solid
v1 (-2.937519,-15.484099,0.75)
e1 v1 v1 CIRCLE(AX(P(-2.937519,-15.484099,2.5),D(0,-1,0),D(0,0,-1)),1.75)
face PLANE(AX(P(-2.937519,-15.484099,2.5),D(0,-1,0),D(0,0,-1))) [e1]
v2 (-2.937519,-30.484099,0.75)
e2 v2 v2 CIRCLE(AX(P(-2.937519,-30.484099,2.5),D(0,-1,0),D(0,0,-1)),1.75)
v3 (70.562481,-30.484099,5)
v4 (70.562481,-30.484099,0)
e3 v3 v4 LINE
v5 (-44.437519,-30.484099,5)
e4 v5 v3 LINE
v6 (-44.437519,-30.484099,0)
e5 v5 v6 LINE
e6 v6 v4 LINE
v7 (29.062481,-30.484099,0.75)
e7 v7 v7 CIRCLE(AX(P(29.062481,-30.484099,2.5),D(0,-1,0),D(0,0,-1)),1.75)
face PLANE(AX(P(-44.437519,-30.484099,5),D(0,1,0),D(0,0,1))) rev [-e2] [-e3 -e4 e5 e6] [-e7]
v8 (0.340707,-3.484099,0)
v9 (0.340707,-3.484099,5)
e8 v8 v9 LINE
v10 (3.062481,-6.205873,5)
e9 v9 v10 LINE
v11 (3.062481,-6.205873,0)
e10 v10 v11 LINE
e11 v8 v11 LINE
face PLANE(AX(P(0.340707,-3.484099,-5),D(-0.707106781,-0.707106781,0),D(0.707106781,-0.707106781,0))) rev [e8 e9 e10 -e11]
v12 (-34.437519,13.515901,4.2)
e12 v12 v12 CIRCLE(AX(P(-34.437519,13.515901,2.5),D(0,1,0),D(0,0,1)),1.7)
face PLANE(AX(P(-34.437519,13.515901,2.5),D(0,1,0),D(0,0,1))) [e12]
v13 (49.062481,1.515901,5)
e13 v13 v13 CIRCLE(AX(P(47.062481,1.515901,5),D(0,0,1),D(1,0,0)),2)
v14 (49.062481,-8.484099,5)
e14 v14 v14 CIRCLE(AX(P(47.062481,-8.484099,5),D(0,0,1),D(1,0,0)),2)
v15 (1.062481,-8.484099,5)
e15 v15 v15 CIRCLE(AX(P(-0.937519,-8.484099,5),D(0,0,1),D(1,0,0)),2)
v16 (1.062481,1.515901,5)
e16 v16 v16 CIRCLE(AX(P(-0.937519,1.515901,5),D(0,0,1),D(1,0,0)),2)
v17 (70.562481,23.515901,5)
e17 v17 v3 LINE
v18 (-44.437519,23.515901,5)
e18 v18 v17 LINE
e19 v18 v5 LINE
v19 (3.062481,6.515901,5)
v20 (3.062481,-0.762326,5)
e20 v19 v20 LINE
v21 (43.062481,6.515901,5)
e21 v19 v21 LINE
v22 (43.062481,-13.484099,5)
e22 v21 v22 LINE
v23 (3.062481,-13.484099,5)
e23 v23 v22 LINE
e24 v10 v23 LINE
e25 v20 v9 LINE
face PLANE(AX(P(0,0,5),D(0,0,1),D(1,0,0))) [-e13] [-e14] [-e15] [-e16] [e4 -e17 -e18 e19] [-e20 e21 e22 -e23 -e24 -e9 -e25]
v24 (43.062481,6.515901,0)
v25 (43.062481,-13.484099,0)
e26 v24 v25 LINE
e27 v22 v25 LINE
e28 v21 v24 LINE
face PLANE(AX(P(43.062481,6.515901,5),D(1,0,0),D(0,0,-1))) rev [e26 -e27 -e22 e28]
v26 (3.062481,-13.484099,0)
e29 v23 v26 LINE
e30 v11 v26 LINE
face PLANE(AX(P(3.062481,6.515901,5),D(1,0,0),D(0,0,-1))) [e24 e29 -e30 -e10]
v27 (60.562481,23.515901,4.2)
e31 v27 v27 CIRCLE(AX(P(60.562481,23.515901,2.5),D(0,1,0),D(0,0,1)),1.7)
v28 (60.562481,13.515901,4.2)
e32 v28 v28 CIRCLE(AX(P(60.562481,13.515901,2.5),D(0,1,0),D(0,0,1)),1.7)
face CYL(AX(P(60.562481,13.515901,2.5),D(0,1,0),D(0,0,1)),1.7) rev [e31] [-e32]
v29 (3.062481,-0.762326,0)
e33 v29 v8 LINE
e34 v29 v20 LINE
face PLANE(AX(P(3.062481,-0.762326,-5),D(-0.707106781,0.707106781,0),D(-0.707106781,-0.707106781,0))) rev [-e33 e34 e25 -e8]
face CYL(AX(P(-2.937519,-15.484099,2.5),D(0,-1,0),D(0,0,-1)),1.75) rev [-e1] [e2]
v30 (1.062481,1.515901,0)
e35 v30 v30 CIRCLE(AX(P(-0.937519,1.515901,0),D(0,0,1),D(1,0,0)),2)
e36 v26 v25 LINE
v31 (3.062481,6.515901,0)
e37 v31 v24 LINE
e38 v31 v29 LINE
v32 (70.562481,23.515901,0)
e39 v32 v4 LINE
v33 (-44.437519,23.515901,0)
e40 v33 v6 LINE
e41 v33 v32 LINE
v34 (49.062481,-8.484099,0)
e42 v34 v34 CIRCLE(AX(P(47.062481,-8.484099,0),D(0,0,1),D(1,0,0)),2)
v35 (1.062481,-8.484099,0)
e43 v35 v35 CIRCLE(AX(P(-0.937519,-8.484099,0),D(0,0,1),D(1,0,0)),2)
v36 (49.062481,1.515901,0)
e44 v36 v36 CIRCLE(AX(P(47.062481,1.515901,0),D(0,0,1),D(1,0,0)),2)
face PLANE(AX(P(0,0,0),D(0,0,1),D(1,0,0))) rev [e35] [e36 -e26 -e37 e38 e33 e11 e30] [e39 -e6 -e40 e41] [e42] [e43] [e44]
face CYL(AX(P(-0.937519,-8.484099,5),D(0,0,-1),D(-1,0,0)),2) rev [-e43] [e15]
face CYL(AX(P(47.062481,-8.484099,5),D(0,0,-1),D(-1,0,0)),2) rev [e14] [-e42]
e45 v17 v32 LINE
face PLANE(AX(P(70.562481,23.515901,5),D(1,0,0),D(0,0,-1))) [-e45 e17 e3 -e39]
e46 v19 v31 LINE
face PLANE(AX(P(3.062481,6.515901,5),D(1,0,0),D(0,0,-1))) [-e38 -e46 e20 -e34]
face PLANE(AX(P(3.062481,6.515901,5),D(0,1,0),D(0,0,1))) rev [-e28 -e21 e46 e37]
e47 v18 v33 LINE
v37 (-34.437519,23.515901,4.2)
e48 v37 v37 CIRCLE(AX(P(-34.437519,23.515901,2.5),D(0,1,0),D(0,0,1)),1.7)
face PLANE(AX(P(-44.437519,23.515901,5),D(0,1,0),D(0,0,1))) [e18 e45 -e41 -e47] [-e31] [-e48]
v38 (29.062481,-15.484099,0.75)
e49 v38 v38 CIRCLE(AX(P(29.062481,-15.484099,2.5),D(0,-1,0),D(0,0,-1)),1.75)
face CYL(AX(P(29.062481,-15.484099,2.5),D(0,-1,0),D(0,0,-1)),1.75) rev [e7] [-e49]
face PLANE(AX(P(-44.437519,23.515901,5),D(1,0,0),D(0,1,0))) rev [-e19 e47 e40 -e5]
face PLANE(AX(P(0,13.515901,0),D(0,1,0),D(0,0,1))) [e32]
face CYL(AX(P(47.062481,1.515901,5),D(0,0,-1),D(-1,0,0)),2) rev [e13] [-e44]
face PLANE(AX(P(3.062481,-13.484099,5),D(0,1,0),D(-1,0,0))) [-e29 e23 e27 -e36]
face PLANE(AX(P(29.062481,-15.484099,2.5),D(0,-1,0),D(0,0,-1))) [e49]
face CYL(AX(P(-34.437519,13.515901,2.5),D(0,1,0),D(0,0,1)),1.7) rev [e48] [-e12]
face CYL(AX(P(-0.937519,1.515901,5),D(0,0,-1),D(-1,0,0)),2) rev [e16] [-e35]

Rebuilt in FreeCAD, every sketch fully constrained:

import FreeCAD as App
import Part
import Sketcher

V = App.Vector

doc = App.newDocument("Part")
body = doc.addObject("PartDesign::Body", "Body")

# Sketch on XY plane
sketch1 = body.newObject("Sketcher::SketchObject", "Sketch")
sketch1.AttachmentSupport = (doc.getObject("XY_Plane"), [""])
sketch1.MapMode = "FlatFace"
sketch1.addGeometry(Part.LineSegment(V(-44.437519, 23.515901, 0), V(-44.437519, -30.484099, 0)), False)
sketch1.addGeometry(Part.LineSegment(V(-44.437519, -30.484099, 0), V(70.562481, -30.484099, 0)), False)
sketch1.addGeometry(Part.LineSegment(V(70.562481, -30.484099, 0), V(70.562481, 23.515901, 0)), False)
sketch1.addGeometry(Part.LineSegment(V(70.562481, 23.515901, 0), V(-44.437519, 23.515901, 0)), False)
sketch1.addGeometry(Part.Circle(V(-0.937519, -8.484099, 0), V(0, 0, 1), 2), False)
sketch1.addGeometry(Part.Circle(V(47.062481, -8.484099, 0), V(0, 0, 1), 2), False)
sketch1.addGeometry(Part.Circle(V(-0.937519, 1.515901, 0), V(0, 0, 1), 2), False)
sketch1.addGeometry(Part.LineSegment(V(43.062481, -13.484099, 0), V(3.062481, -13.484099, 0)), False)
sketch1.addGeometry(Part.LineSegment(V(3.062481, -13.484099, 0), V(3.062481, 6.515901, 0)), False)
sketch1.addGeometry(Part.LineSegment(V(3.062481, 6.515901, 0), V(43.062481, 6.515901, 0)), False)
sketch1.addGeometry(Part.LineSegment(V(43.062481, 6.515901, 0), V(43.062481, -13.484099, 0)), False)
sketch1.addGeometry(Part.Circle(V(47.062481, 1.515901, 0), V(0, 0, 1), 2), False)
sketch1.addConstraint(Sketcher.Constraint("Coincident", 0, 2, 1, 1))
sketch1.addConstraint(Sketcher.Constraint("Coincident", 1, 2, 2, 1))
sketch1.addConstraint(Sketcher.Constraint("Coincident", 2, 2, 3, 1))
sketch1.addConstraint(Sketcher.Constraint("Coincident", 3, 2, 0, 1))
sketch1.addConstraint(Sketcher.Constraint("Coincident", 7, 2, 8, 1))
sketch1.addConstraint(Sketcher.Constraint("Coincident", 8, 2, 9, 1))
sketch1.addConstraint(Sketcher.Constraint("Coincident", 9, 2, 10, 1))
sketch1.addConstraint(Sketcher.Constraint("Coincident", 10, 2, 7, 1))
sketch1.addConstraint(Sketcher.Constraint("Vertical", 0))
sketch1.addConstraint(Sketcher.Constraint("Horizontal", 1))
sketch1.addConstraint(Sketcher.Constraint("Vertical", 2))
sketch1.addConstraint(Sketcher.Constraint("Horizontal", 3))
sketch1.addConstraint(Sketcher.Constraint("Horizontal", 7))
sketch1.addConstraint(Sketcher.Constraint("Vertical", 8))
sketch1.addConstraint(Sketcher.Constraint("Horizontal", 9))
sketch1.addConstraint(Sketcher.Constraint("Vertical", 10))
sketch1.addConstraint(Sketcher.Constraint("Equal", 4, 5))
sketch1.addConstraint(Sketcher.Constraint("Equal", 5, 6))
sketch1.addConstraint(Sketcher.Constraint("Equal", 6, 11))
sketch1.addConstraint(Sketcher.Constraint("Horizontal", 4, 3, 5, 3))
sketch1.addConstraint(Sketcher.Constraint("Horizontal", 6, 3, 11, 3))
sketch1.addConstraint(Sketcher.Constraint("Vertical", 4, 3, 6, 3))
sketch1.addConstraint(Sketcher.Constraint("Vertical", 5, 3, 11, 3))
sketch1.addConstraint(Sketcher.Constraint("Diameter", 4, 4.0))
sketch1.addConstraint(Sketcher.Constraint("DistanceX", 1, 1, 1, 2, 115.0))
sketch1.addConstraint(Sketcher.Constraint("DistanceX", 7, 2, 7, 1, 40.0))
sketch1.addConstraint(Sketcher.Constraint("DistanceY", 0, 2, 0, 1, 54.0))
sketch1.addConstraint(Sketcher.Constraint("DistanceY", 8, 1, 8, 2, 20.0))
sketch1.addConstraint(Sketcher.Constraint("DistanceX", 4, 3, 5, 3, 48.0))
sketch1.addConstraint(Sketcher.Constraint("DistanceY", 4, 3, 6, 3, 10.0))
sketch1.addConstraint(Sketcher.Constraint("DistanceY", 0, 2, 4, 3, 22.0))
sketch1.addConstraint(Sketcher.Constraint("DistanceX", 4, 3, 7, 2, 4.0))
sketch1.addConstraint(Sketcher.Constraint("DistanceY", 7, 2, 4, 3, 5.0))
sketch1.addConstraint(Sketcher.Constraint("DistanceX", 0, 2, 4, 3, 43.5))
sketch1.addConstraint(Sketcher.Constraint("DistanceY", 4, 3, -1, 1, 8.484099))
sketch1.addConstraint(Sketcher.Constraint("DistanceX", 4, 3, -1, 1, 0.937519))
pad1 = body.newObject("PartDesign::Pad", "Pad")
pad1.Profile = sketch1
pad1.Length = 5

# Sketch on XZ plane
sketch2 = body.newObject("Sketcher::SketchObject", "Sketch001")
sketch2.AttachmentSupport = (doc.getObject("XZ_Plane"), [""])
sketch2.MapMode = "FlatFace"
sketch2.AttachmentOffset = App.Placement(V(0, 0, 30.484099), App.Rotation())
sketch2.addGeometry(Part.Circle(V(29.062481, 2.5, 0), V(0, 0, 1), 1.75), False)
sketch2.addGeometry(Part.Circle(V(-2.937519, 2.5, 0), V(0, 0, 1), 1.75), False)
sketch2.addConstraint(Sketcher.Constraint("Equal", 0, 1))
sketch2.addConstraint(Sketcher.Constraint("Horizontal", 0, 3, 1, 3))
sketch2.addConstraint(Sketcher.Constraint("Diameter", 0, 3.5))
sketch2.addConstraint(Sketcher.Constraint("DistanceX", 1, 3, 0, 3, 32.0))
sketch2.addConstraint(Sketcher.Constraint("DistanceY", -1, 1, 0, 3, 2.5))
sketch2.addConstraint(Sketcher.Constraint("DistanceX", -1, 1, 0, 3, 29.062481))
pocket1 = body.newObject("PartDesign::Pocket", "Pocket")
pocket1.Profile = sketch2
pocket1.Length = 15

# Sketch on XY plane
sketch3 = body.newObject("Sketcher::SketchObject", "Sketch002")
sketch3.AttachmentSupport = (doc.getObject("XY_Plane"), [""])
sketch3.MapMode = "FlatFace"
sketch3.AttachmentOffset = App.Placement(V(0, 0, 5), App.Rotation())
sketch3.addGeometry(Part.LineSegment(V(0.340707, -3.484099, 0), V(3.062481, -6.205873, 0)), False)
sketch3.addGeometry(Part.LineSegment(V(3.062481, -6.205873, 0), V(3.062481, -0.762326, 0)), False)
sketch3.addGeometry(Part.LineSegment(V(3.062481, -0.762326, 0), V(0.340707, -3.484099, 0)), False)
sketch3.addConstraint(Sketcher.Constraint("Coincident", 0, 2, 1, 1))
sketch3.addConstraint(Sketcher.Constraint("Coincident", 1, 2, 2, 1))
sketch3.addConstraint(Sketcher.Constraint("Coincident", 2, 2, 0, 1))
sketch3.addConstraint(Sketcher.Constraint("Vertical", 1))
sketch3.addConstraint(Sketcher.Constraint("Perpendicular", 0, 2))
sketch3.addConstraint(Sketcher.Constraint("Equal", 0, 2))
sketch3.addConstraint(Sketcher.Constraint("DistanceY", 2, 2, -1, 1, 3.484099))
sketch3.addConstraint(Sketcher.Constraint("Distance", 0, 3.849169))
sketch3.addConstraint(Sketcher.Constraint("DistanceX", -1, 1, 0, 2, 3.062481))
pocket2 = body.newObject("PartDesign::Pocket", "Pocket001")
pocket2.Profile = sketch3
pocket2.Length = 10

# Sketch on XZ plane
sketch4 = body.newObject("Sketcher::SketchObject", "Sketch003")
sketch4.AttachmentSupport = (doc.getObject("XZ_Plane"), [""])
sketch4.MapMode = "FlatFace"
sketch4.AttachmentOffset = App.Placement(V(0, 0, -23.515901), App.Rotation())
sketch4.addGeometry(Part.Circle(V(60.562481, 2.5, 0), V(0, 0, 1), 1.7), False)
sketch4.addGeometry(Part.Circle(V(-34.437519, 2.5, 0), V(0, 0, 1), 1.7), False)
sketch4.addConstraint(Sketcher.Constraint("Equal", 0, 1))
sketch4.addConstraint(Sketcher.Constraint("Horizontal", 0, 3, 1, 3))
sketch4.addConstraint(Sketcher.Constraint("Diameter", 0, 3.4))
sketch4.addConstraint(Sketcher.Constraint("DistanceX", 1, 3, 0, 3, 95.0))
sketch4.addConstraint(Sketcher.Constraint("DistanceY", -1, 1, 0, 3, 2.5))
sketch4.addConstraint(Sketcher.Constraint("DistanceX", -1, 1, 0, 3, 60.562481))
pocket3 = body.newObject("PartDesign::Pocket", "Pocket002")
pocket3.Profile = sketch4
pocket3.Length = 10
pocket3.Reversed = True

doc.recompute()
